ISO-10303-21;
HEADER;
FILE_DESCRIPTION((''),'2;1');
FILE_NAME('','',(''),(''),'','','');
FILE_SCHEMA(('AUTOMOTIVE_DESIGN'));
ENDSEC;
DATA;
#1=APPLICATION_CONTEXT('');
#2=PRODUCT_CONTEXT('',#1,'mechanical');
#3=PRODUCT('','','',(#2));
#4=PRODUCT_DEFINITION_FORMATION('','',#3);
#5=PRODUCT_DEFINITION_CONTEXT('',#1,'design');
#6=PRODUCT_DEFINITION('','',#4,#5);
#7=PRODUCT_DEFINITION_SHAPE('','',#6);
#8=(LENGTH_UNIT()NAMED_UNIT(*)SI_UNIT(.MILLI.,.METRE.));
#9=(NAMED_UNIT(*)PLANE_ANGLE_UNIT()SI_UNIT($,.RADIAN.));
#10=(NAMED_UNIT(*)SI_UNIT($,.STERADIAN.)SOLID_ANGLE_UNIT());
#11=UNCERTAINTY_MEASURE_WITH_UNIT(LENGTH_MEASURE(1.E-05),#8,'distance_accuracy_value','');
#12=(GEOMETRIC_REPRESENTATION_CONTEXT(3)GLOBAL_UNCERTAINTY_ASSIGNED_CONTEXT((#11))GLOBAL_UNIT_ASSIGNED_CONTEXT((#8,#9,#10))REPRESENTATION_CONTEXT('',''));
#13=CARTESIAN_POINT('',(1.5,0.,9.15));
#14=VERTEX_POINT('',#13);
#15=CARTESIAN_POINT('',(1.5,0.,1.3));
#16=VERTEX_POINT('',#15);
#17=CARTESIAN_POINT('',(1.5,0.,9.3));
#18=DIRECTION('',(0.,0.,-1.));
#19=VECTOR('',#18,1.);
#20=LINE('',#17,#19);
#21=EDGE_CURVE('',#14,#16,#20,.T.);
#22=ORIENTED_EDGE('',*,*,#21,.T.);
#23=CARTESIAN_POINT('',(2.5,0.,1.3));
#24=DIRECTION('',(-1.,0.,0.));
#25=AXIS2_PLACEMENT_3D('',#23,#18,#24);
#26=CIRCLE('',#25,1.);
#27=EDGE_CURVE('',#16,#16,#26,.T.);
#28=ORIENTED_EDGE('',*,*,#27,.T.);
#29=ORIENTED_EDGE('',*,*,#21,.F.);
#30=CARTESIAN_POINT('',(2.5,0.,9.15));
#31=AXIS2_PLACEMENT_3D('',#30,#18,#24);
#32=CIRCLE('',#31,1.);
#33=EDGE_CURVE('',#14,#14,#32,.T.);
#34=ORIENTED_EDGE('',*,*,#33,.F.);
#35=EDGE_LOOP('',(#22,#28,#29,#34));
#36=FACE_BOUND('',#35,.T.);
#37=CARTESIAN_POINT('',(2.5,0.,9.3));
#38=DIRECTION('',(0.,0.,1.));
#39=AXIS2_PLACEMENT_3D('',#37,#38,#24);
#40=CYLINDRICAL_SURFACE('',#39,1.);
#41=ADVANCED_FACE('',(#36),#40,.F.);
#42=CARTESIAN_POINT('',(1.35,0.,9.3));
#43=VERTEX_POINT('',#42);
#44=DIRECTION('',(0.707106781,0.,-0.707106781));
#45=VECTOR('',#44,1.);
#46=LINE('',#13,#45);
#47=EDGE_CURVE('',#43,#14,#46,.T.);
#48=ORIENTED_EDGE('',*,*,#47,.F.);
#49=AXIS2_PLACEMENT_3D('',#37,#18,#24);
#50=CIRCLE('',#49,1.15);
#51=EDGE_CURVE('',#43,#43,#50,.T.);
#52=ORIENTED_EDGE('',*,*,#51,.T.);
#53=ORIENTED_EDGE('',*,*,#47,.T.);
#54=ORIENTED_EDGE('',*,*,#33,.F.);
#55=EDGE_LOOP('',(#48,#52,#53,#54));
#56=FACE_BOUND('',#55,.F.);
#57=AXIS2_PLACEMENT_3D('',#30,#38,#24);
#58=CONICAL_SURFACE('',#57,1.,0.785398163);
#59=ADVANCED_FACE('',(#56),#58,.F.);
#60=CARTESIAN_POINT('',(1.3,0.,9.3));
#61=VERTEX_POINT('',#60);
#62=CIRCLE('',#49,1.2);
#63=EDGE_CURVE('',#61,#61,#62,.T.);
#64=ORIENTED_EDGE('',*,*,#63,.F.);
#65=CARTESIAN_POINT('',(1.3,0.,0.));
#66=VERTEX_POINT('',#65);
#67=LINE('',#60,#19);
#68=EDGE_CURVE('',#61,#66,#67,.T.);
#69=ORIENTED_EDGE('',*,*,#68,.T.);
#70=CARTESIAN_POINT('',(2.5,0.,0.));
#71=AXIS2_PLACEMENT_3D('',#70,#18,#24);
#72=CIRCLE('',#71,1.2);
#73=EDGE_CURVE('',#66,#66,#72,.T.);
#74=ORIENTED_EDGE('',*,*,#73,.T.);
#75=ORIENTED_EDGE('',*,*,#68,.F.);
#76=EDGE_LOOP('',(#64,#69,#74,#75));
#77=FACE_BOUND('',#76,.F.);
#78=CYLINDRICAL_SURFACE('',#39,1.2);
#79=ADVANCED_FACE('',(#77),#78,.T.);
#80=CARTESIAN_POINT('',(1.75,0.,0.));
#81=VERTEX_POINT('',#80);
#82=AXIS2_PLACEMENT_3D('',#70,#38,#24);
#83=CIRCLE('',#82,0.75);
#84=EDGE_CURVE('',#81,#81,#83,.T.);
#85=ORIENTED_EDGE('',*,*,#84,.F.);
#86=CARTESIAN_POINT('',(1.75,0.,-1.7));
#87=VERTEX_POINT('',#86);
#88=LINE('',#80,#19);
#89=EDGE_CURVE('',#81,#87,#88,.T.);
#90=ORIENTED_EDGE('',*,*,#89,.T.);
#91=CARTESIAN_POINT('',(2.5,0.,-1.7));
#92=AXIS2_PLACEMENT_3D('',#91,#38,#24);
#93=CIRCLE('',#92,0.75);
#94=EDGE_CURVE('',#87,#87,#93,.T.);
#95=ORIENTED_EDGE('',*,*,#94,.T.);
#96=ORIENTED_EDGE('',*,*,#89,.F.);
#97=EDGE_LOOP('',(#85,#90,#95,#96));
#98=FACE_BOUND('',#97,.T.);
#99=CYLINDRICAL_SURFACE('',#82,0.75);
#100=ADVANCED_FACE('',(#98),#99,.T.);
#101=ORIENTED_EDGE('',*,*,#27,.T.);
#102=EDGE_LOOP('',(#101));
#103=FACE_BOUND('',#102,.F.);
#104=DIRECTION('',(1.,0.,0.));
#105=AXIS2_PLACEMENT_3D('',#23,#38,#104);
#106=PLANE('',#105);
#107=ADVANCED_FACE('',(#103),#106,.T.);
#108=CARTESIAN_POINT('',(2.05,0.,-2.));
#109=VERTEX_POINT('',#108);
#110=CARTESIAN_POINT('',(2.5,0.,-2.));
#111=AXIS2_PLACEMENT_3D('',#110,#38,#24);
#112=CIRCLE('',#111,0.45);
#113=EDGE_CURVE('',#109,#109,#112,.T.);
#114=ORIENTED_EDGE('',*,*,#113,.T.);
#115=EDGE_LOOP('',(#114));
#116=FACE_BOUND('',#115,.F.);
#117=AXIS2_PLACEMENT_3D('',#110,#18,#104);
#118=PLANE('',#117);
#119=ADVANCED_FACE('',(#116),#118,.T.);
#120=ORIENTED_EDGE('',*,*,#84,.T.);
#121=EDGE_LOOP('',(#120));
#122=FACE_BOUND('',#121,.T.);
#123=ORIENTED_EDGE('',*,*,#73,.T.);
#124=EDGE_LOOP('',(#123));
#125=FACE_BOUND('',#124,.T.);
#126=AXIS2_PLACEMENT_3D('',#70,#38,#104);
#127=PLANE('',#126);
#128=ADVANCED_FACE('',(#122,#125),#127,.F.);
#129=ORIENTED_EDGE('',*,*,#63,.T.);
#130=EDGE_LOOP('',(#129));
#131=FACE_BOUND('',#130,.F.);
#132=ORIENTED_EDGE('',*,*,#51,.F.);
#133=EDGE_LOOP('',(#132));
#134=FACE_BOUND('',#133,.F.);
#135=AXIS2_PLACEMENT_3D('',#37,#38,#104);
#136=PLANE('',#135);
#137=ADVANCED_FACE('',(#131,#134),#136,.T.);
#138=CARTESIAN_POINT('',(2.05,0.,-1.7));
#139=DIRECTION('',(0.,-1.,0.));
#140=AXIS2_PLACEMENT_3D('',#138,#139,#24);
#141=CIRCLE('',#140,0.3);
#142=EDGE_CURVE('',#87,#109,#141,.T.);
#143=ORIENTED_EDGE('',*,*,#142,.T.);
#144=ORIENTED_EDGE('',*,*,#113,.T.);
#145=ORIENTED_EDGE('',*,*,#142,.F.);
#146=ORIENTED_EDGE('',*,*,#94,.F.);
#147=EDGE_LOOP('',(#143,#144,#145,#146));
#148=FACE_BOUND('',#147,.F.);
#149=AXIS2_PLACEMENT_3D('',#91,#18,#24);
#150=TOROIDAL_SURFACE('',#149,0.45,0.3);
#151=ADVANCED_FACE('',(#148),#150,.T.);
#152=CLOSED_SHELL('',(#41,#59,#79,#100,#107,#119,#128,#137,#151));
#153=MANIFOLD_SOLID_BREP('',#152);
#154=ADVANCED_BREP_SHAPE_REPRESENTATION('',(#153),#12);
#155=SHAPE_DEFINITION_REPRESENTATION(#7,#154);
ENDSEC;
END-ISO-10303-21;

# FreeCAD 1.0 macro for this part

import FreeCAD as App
import Part
import Sketcher


def edges_at(feature, points):
    """Names of the edges that pass closest to the given points."""
    edges = feature.Shape.Edges
    near = lambda p: min(range(len(edges)), key=lambda i: edges[i].distToShape(Part.Vertex(*p))[0])
    return sorted({f"Edge{near(p) + 1}" for p in points})

doc = App.newDocument("Part")
body = doc.addObject("PartDesign::Body", "Body")

# Sketch on XY plane
sketch1 = body.newObject("Sketcher::SketchObject", "Sketch")
sketch1.AttachmentSupport = (doc.getObject("XY_Plane"), [""])
sketch1.MapMode = "FlatFace"
sketch1.AttachmentOffset = App.Placement(App.Vector(0, 0, 9.3), App.Rotation())
sketch1.addGeometry(Part.Circle(App.Vector(-2.5, 0, 0), App.Vector(0, 0, 1), 1), False)
sketch1.addConstraint([
    Sketcher.Constraint("PointOnObject", 0, 3, -1),
    Sketcher.Constraint("Diameter", 0, 2.0),
    Sketcher.Constraint("DistanceX", 0, 3, -1, 1, 2.5),
])
pad1 = body.newObject("PartDesign::Pad", "Pad")
pad1.Profile = sketch1
pad1.Length = 8
pad1.Reversed = True
body2 = doc.addObject("PartDesign::Body", "Body001")

# Sketch on XY plane
sketch2 = body2.newObject("Sketcher::SketchObject", "Sketch001")
sketch2.AttachmentSupport = (doc.getObject("XY_Plane001"), [""])
sketch2.MapMode = "FlatFace"
sketch2.AttachmentOffset = App.Placement(App.Vector(0, 0, 9.6), App.Rotation())
sketch2.addGeometry(Part.Circle(App.Vector(-2.5, 0, 0), App.Vector(0, 0, 1), 1.2), False)
sketch2.addConstraint([
    Sketcher.Constraint("PointOnObject", 0, 3, -1),
    Sketcher.Constraint("Diameter", 0, 2.4),
    Sketcher.Constraint("DistanceX", 0, 3, -1, 1, 2.5),
])
pad2 = body2.newObject("PartDesign::Pad", "Pad001")
pad2.Profile = sketch2
pad2.Length = 9.3
pad2.Reversed = True
body3 = doc.addObject("PartDesign::Body", "Body002")
doc.recompute()

body2.Placement = App.Placement(App.Vector(0, 0, -0.3), App.Rotation(App.Vector(0, 0, 1), 0))
boolean = body3.newObject("PartDesign::Boolean", "Boolean")
boolean.Type = "Fuse"
boolean.addObjects([body2])
doc.recompute()

boolean2 = body3.newObject("PartDesign::Boolean", "Boolean001")
boolean2.Type = "Cut"
boolean2.addObjects([body])
doc.recompute()

chamfer = body3.newObject("PartDesign::Chamfer", "Chamfer")
chamfer.Base = (boolean2, edges_at(boolean2, [(-3.5, 0, 9.3)]))
chamfer.Size = 0.15
body4 = doc.addObject("PartDesign::Body", "Body003")

# Sketch on XY plane
sketch3 = body4.newObject("Sketcher::SketchObject", "Sketch002")
sketch3.AttachmentSupport = (doc.getObject("XY_Plane003"), [""])
sketch3.MapMode = "FlatFace"
sketch3.addGeometry(Part.Circle(App.Vector(-2.5, 0, 0), App.Vector(0, 0, 1), 0.8), False)
sketch3.addConstraint([
    Sketcher.Constraint("PointOnObject", 0, 3, -1),
    Sketcher.Constraint("Diameter", 0, 1.5),
    Sketcher.Constraint("DistanceX", 0, 3, -1, 1, 2.5),
])
pad3 = body4.newObject("PartDesign::Pad", "Pad002")
pad3.Profile = sketch3
pad3.Length = 2
pad3.Reversed = True
doc.recompute()

fillet = body4.newObject("PartDesign::Fillet", "Fillet")
fillet.Base = (pad3, edges_at(pad3, [(-3.25, 0, -2)]))
fillet.Radius = 0.3
doc.recompute()

boolean3 = body4.newObject("PartDesign::Boolean", "Boolean002")
boolean3.Type = "Fuse"
boolean3.addObjects([body3])
body5 = doc.addObject("PartDesign::Body", "Body004")
doc.recompute()

mirroring = doc.addObject("Part::Mirroring", "Mirroring")
mirroring.Source = body4
mirroring.Base = App.Vector(0, 0, 0)
mirroring.Normal = App.Vector(1, 0, 0)
body5.BaseFeature = mirroring
doc.recompute()
body4.Visibility = False
mirroring.Visibility = False

doc.recompute()
